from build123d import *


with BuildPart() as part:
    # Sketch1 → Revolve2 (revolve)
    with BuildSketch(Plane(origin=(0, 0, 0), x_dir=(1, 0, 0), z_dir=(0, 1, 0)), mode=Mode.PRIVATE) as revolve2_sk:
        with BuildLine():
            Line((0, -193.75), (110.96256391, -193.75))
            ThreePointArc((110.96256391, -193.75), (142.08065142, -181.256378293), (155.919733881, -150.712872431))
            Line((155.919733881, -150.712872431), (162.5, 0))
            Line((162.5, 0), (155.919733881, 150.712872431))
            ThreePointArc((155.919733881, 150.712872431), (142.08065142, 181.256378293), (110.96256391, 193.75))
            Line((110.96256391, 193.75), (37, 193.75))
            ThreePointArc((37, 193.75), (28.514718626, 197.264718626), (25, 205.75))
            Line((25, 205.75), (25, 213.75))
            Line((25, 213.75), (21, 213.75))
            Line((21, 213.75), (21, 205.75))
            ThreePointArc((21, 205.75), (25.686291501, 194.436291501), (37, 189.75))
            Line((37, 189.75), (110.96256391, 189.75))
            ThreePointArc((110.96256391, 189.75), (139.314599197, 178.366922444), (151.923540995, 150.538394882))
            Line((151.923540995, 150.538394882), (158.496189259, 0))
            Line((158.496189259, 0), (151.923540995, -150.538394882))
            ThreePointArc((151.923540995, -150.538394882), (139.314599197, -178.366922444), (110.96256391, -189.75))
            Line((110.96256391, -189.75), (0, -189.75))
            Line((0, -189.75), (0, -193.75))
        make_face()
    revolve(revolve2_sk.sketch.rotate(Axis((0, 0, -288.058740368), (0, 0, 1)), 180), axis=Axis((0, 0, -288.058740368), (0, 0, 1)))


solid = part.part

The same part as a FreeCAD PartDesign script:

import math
import FreeCAD as App
import Part
import Sketcher
from FreeCAD import Vector
Q = App.Units.Quantity

doc = App.newDocument("Part")
body = doc.addObject("PartDesign::Body", "Body")

sketch1 = body.newObject("Sketcher::SketchObject", "Sketch")
sketch1.AttachmentSupport = (doc.getObject("XZ_Plane"), [""])
sketch1.MapMode = "FlatFace"
sketch1.addGeometry([
    Part.LineSegment(Vector(0, 193.8, 0), Vector(111, 193.8, 0)),
    Part.ArcOfCircle(Part.Circle(Vector(111, 148.8, 0), Vector(0, 0, 1), 45), math.radians(2), math.radians(90)),
    Part.LineSegment(Vector(155.9, 150.7, 0), Vector(162.5, 0, 0)),
    Part.LineSegment(Vector(162.5, 0, 0), Vector(155.9, -150.7, 0)),
    Part.ArcOfCircle(Part.Circle(Vector(111, -148.8, 0), Vector(0, 0, 1), 45), math.radians(-90), math.radians(-2)),
    Part.LineSegment(Vector(111, -193.8, 0), Vector(37, -193.8, 0)),
    Part.ArcOfCircle(Part.Circle(Vector(37, -205.8, 0), Vector(0, 0, 1), 12), math.radians(90), math.radians(180)),
    Part.LineSegment(Vector(25, -205.8, 0), Vector(25, -213.8, 0)),
    Part.LineSegment(Vector(25, -213.8, 0), Vector(21, -213.8, 0)),
    Part.LineSegment(Vector(21, -213.8, 0), Vector(21, -205.8, 0)),
    Part.ArcOfCircle(Part.Circle(Vector(37, -205.8, 0), Vector(0, 0, 1), 16), math.radians(90), math.radians(180)),
    Part.LineSegment(Vector(37, -189.8, 0), Vector(111, -189.8, 0)),
    Part.ArcOfCircle(Part.Circle(Vector(111, -148.7, 0), Vector(0, 0, 1), 41), math.radians(-90), math.radians(-3)),
    Part.LineSegment(Vector(151.9, -150.5, 0), Vector(158.5, 0, 0)),
    Part.LineSegment(Vector(158.5, 0, 0), Vector(151.9, 150.5, 0)),
    Part.ArcOfCircle(Part.Circle(Vector(111, 148.7, 0), Vector(0, 0, 1), 41), math.radians(3), math.radians(90)),
    Part.LineSegment(Vector(111, 189.8, 0), Vector(0, 189.8, 0)),
    Part.LineSegment(Vector(0, 189.8, 0), Vector(0, 193.8, 0)),
], False)
sketch1.addConstraint([
    Sketcher.Constraint("Tangent", 0, 2, 1, 2),
    Sketcher.Constraint("Tangent", 1, 1, 2, 1),
    Sketcher.Constraint("Coincident", 2, 2, 3, 1),
    Sketcher.Constraint("Tangent", 3, 2, 4, 2),
    Sketcher.Constraint("Tangent", 4, 1, 5, 1),
    Sketcher.Constraint("Tangent", 5, 2, 6, 1),
    Sketcher.Constraint("Tangent", 6, 2, 7, 1),
    Sketcher.Constraint("Coincident", 7, 2, 8, 1),
    Sketcher.Constraint("Coincident", 8, 2, 9, 1),
    Sketcher.Constraint("Tangent", 9, 2, 10, 2),
    Sketcher.Constraint("Tangent", 10, 1, 11, 1),
    Sketcher.Constraint("Tangent", 11, 2, 12, 1),
    Sketcher.Constraint("Tangent", 12, 2, 13, 1),
    Sketcher.Constraint("Coincident", 13, 2, 14, 1),
    Sketcher.Constraint("Tangent", 14, 2, 15, 1),
    Sketcher.Constraint("Tangent", 15, 2, 16, 1),
    Sketcher.Constraint("Coincident", 16, 2, 17, 1),
    Sketcher.Constraint("Coincident", 17, 2, 0, 1),
    Sketcher.Constraint("Horizontal", 0),
    Sketcher.Constraint("Horizontal", 5),
    Sketcher.Constraint("Vertical", 7),
    Sketcher.Constraint("Horizontal", 8),
    Sketcher.Constraint("Vertical", 9),
    Sketcher.Constraint("Horizontal", 11),
    Sketcher.Constraint("Horizontal", 16),
    Sketcher.Constraint("Vertical", 17),
    Sketcher.Constraint("Coincident", 10, 3, 6, 3),
    Sketcher.Constraint("Coincident", 12, 3, 4, 3),
    Sketcher.Constraint("Coincident", 15, 3, 1, 3),
    Sketcher.Constraint("Equal", 1, 4),
    Sketcher.Constraint("Equal", 12, 15),
    Sketcher.Constraint("Symmetric", 1, 3, 4, 3, -1),
    Sketcher.Constraint("PointOnObject", 2, 2, -1),
    Sketcher.Constraint("PointOnObject", 13, 2, -1),
    Sketcher.Constraint("PointOnObject", 16, 2, -2),
    Sketcher.Constraint("Parallel", 3, 13),
    Sketcher.Constraint("Radius", 1, 45.0),
    Sketcher.Constraint("Radius", 6, 12.0),
    Sketcher.Constraint("Radius", 10, 16.0),
    Sketcher.Constraint("DistanceY", 7, 2, 7, 1, 8.0),
    Sketcher.Constraint("DistanceX", -1, 1, 6, 3, 37.0),
    Sketcher.Constraint("Angle", 2, Q("-87.5 deg")),
    Sketcher.Constraint("DistanceX", -1, 1, 2, 2, 162.5),
    Sketcher.Constraint("DistanceY", 4, 3, 1, 3, 297.5),
])
revolution = body.newObject("PartDesign::Revolution", "Revolution")
revolution.Profile = sketch1
revolution.ReferenceAxis = (sketch1, ["V_Axis"])
revolution.Angle = 360

doc.recompute()
